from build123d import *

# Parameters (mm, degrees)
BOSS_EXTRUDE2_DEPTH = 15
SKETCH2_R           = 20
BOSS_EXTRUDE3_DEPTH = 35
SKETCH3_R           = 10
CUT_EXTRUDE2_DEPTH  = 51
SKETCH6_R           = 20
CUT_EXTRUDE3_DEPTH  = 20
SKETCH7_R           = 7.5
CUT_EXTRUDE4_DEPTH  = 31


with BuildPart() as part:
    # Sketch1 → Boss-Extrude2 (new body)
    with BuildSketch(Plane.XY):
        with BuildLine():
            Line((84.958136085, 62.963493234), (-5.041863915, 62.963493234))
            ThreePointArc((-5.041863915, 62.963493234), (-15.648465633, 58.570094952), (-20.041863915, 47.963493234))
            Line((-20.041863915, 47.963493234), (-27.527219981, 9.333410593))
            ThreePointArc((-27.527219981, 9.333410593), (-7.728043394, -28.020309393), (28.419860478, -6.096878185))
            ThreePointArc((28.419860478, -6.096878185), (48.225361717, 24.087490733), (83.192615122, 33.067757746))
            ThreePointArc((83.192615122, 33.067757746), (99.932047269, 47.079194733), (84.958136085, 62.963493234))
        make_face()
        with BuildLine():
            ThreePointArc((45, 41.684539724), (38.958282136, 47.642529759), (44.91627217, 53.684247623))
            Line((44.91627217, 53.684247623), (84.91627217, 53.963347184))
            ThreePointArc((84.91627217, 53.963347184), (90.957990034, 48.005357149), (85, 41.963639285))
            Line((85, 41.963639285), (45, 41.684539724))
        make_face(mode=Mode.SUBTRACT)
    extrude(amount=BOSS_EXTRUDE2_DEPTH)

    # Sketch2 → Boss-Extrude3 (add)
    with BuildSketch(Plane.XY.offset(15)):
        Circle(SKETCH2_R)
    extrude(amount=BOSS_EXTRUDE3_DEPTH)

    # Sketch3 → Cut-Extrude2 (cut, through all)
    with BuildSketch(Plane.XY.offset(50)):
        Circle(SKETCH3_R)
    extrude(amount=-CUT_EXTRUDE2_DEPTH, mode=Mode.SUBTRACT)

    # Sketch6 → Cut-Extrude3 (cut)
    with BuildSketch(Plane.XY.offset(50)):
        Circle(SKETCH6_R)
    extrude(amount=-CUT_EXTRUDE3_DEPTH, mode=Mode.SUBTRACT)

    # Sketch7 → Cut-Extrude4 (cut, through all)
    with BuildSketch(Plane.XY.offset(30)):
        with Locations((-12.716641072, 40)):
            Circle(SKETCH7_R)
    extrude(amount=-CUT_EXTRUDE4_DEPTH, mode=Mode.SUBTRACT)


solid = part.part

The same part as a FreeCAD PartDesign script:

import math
import FreeCAD as App
import Part
import Sketcher
Q = App.Units.Quantity

doc = App.newDocument("Part")
params = doc.addObject("Spreadsheet::Sheet", "Params")
for row, (alias, value) in enumerate([
    ("sketch1_radius", "15 mm"),
    ("sketch1_radius2", "50 mm"),
    ("sketch1_radius3", "6 mm"),
    ("sketch1_width", "90 mm"),
    ("pad1_length", "15 mm"),
    ("sketch2_diameter", "40 mm"),
    ("pad2_length", "35 mm"),
    ("sketch3_diameter", "20 mm"),
    ("sketch4_diameter", "40 mm"),
    ("pocket2_length", "20 mm"),
    ("sketch5_diameter", "15 mm"),
], start=1):
    params.set(f"A{row}", alias)
    params.set(f"B{row}", "=" + value)
    params.setAlias(f"B{row}", alias)

body = doc.addObject("PartDesign::Body", "Body")

sketch1 = body.newObject("Sketcher::SketchObject", "Sketch")
sketch1.AttachmentSupport = (doc.getObject("XY_Plane"), [""])
sketch1.MapMode = "FlatFace"
sketch1.addGeometry([
    Part.LineSegment(App.Vector(84.958136, 62.963493, 0), App.Vector(-5.041864, 62.963493, 0)),
    Part.ArcOfCircle(Part.Circle(App.Vector(-5.041864, 47.963493, 0), App.Vector(0, 0, 1), 15), math.radians(90), math.radians(180)),
    Part.LineSegment(App.Vector(-20.041864, 47.963493, 0), App.Vector(-27.52722, 9.333411, 0)),
    Part.ArcOfCircle(Part.Circle(App.Vector(0, 0, 0), App.Vector(0, 0, 1), 29.066482), math.radians(161.270199), math.radians(347.891928)),
    Part.ArcOfCircle(Part.Circle(App.Vector(77.307545, -16.584694, 0), App.Vector(0, 0, 1), 50), math.radians(83.240538), math.radians(167.891928)),
    Part.ArcOfCircle(Part.Circle(App.Vector(84.958136, 47.963493, 0), App.Vector(0, 0, 1), 15), math.radians(-96.759462), math.radians(90)),
    Part.LineSegment(App.Vector(85, 41.963639, 0), App.Vector(45, 41.68454, 0)),
    Part.ArcOfCircle(Part.Circle(App.Vector(44.958136, 47.684394, 0), App.Vector(0, 0, 1), 6), math.radians(90.399774), math.radians(270.399774)),
    Part.LineSegment(App.Vector(44.916272, 53.684248, 0), App.Vector(84.916272, 53.963347, 0)),
    Part.ArcOfCircle(Part.Circle(App.Vector(84.958136, 47.963493, 0), App.Vector(0, 0, 1), 6), math.radians(-89.600226), math.radians(90.399774)),
], False)
sketch1.addConstraint([
    Sketcher.Constraint("Tangent", 0, 2, 1, 1),
    Sketcher.Constraint("Coincident", 1, 2, 2, 1),
    Sketcher.Constraint("Coincident", 2, 2, 3, 1),
    Sketcher.Constraint("Tangent", 3, 2, 4, 2),
    Sketcher.Constraint("Tangent", 4, 1, 5, 1),
    Sketcher.Constraint("Tangent", 5, 2, 0, 1),
    Sketcher.Constraint("Tangent", 6, 2, 7, 2),
    Sketcher.Constraint("Tangent", 7, 1, 8, 1),
    Sketcher.Constraint("Tangent", 8, 2, 9, 2),
    Sketcher.Constraint("Tangent", 9, 1, 6, 1),
    Sketcher.Constraint("Horizontal", 0),
    Sketcher.Constraint("Coincident", 3, 3, -1, 1),
    Sketcher.Constraint("Coincident", 9, 3, 5, 3),
    Sketcher.Constraint("Equal", 1, 5),
    Sketcher.Constraint("Equal", 7, 9),
    Sketcher.Constraint("Horizontal", 9, 3, 1, 2),
    Sketcher.Constraint("Radius", 1, Q("15 mm")),
    Sketcher.Constraint("Radius", 4, Q("50 mm")),
    Sketcher.Constraint("Radius", 7, Q("6 mm")),
    Sketcher.Constraint("DistanceX", 0, 2, 0, 1, Q("90 mm")),
    Sketcher.Constraint("DistanceX", -1, 1, 6, 2, Q("45 mm")),
    Sketcher.Constraint("DistanceX", -1, 1, 9, 1, Q("85 mm")),
    Sketcher.Constraint("Radius", 3, Q("29.066482 mm")),
    Sketcher.Constraint("DistanceY", 7, 3, 5, 3, Q("0.2791 mm")),
    Sketcher.Constraint("Distance", 2, Q("39.348619 mm")),
    Sketcher.Constraint("DistanceX", 2, 2, -1, 1, Q("27.52722 mm")),
])
sketch1.setExpression("Constraints[16]", "Params.sketch1_radius")
sketch1.setExpression("Constraints[17]", "Params.sketch1_radius2")
sketch1.setExpression("Constraints[18]", "Params.sketch1_radius3")
sketch1.setExpression("Constraints[19]", "Params.sketch1_width")
pad1 = body.newObject("PartDesign::Pad", "Pad")
pad1.Profile = sketch1
pad1.setExpression("Length", "Params.pad1_length")

sketch2 = body.newObject("Sketcher::SketchObject", "Sketch001")
sketch2.AttachmentSupport = (doc.getObject("XY_Plane"), [""])
sketch2.MapMode = "FlatFace"
sketch2.AttachmentOffset = App.Placement(App.Vector(0, 0, 15), App.Rotation())
sketch2.addGeometry(Part.Circle(App.Vector(0, 0, 0), App.Vector(0, 0, 1), 20), False)
sketch2.addConstraint([
    Sketcher.Constraint("Coincident", 0, 3, -1, 1),
    Sketcher.Constraint("Diameter", 0, Q("40 mm")),
])
sketch2.setExpression("Constraints[1]", "Params.sketch2_diameter")
pad2 = body.newObject("PartDesign::Pad", "Pad001")
pad2.Profile = sketch2
pad2.setExpression("Length", "Params.pad2_length")

sketch3 = body.newObject("Sketcher::SketchObject", "Sketch002")
sketch3.AttachmentSupport = (doc.getObject("XY_Plane"), [""])
sketch3.MapMode = "FlatFace"
sketch3.AttachmentOffset = App.Placement(App.Vector(0, 0, 50), App.Rotation())
sketch3.addGeometry(Part.Circle(App.Vector(0, 0, 0), App.Vector(0, 0, 1), 10), False)
sketch3.addConstraint([
    Sketcher.Constraint("Coincident", 0, 3, -1, 1),
    Sketcher.Constraint("Diameter", 0, Q("20 mm")),
])
sketch3.setExpression("Constraints[1]", "Params.sketch3_diameter")
pocket1 = body.newObject("PartDesign::Pocket", "Pocket")
pocket1.Profile = sketch3
pocket1.Type = "ThroughAll"

sketch4 = body.newObject("Sketcher::SketchObject", "Sketch003")
sketch4.AttachmentSupport = (doc.getObject("XY_Plane"), [""])
sketch4.MapMode = "FlatFace"
sketch4.AttachmentOffset = App.Placement(App.Vector(0, 0, 50), App.Rotation())
sketch4.addGeometry(Part.Circle(App.Vector(0, 0, 0), App.Vector(0, 0, 1), 20), False)
sketch4.addConstraint([
    Sketcher.Constraint("Coincident", 0, 3, -1, 1),
    Sketcher.Constraint("Diameter", 0, Q("40 mm")),
])
sketch4.setExpression("Constraints[1]", "Params.sketch4_diameter")
pocket2 = body.newObject("PartDesign::Pocket", "Pocket001")
pocket2.Profile = sketch4
pocket2.setExpression("Length", "Params.pocket2_length")

sketch5 = body.newObject("Sketcher::SketchObject", "Sketch004")
sketch5.AttachmentSupport = (doc.getObject("XY_Plane"), [""])
sketch5.MapMode = "FlatFace"
sketch5.AttachmentOffset = App.Placement(App.Vector(0, 0, 30), App.Rotation())
sketch5.addGeometry(Part.Circle(App.Vector(-12.716641, 40, 0), App.Vector(0, 0, 1), 7.5), False)
sketch5.addConstraint([
    Sketcher.Constraint("Diameter", 0, Q("15 mm")),
    Sketcher.Constraint("DistanceY", -1, 1, 0, 3, Q("40 mm")),
    Sketcher.Constraint("DistanceX", 0, 3, -1, 1, Q("12.716641 mm")),
])
sketch5.setExpression("Constraints[0]", "Params.sketch5_diameter")
pocket3 = body.newObject("PartDesign::Pocket", "Pocket002")
pocket3.Profile = sketch5
pocket3.Type = "ThroughAll"

doc.recompute()
